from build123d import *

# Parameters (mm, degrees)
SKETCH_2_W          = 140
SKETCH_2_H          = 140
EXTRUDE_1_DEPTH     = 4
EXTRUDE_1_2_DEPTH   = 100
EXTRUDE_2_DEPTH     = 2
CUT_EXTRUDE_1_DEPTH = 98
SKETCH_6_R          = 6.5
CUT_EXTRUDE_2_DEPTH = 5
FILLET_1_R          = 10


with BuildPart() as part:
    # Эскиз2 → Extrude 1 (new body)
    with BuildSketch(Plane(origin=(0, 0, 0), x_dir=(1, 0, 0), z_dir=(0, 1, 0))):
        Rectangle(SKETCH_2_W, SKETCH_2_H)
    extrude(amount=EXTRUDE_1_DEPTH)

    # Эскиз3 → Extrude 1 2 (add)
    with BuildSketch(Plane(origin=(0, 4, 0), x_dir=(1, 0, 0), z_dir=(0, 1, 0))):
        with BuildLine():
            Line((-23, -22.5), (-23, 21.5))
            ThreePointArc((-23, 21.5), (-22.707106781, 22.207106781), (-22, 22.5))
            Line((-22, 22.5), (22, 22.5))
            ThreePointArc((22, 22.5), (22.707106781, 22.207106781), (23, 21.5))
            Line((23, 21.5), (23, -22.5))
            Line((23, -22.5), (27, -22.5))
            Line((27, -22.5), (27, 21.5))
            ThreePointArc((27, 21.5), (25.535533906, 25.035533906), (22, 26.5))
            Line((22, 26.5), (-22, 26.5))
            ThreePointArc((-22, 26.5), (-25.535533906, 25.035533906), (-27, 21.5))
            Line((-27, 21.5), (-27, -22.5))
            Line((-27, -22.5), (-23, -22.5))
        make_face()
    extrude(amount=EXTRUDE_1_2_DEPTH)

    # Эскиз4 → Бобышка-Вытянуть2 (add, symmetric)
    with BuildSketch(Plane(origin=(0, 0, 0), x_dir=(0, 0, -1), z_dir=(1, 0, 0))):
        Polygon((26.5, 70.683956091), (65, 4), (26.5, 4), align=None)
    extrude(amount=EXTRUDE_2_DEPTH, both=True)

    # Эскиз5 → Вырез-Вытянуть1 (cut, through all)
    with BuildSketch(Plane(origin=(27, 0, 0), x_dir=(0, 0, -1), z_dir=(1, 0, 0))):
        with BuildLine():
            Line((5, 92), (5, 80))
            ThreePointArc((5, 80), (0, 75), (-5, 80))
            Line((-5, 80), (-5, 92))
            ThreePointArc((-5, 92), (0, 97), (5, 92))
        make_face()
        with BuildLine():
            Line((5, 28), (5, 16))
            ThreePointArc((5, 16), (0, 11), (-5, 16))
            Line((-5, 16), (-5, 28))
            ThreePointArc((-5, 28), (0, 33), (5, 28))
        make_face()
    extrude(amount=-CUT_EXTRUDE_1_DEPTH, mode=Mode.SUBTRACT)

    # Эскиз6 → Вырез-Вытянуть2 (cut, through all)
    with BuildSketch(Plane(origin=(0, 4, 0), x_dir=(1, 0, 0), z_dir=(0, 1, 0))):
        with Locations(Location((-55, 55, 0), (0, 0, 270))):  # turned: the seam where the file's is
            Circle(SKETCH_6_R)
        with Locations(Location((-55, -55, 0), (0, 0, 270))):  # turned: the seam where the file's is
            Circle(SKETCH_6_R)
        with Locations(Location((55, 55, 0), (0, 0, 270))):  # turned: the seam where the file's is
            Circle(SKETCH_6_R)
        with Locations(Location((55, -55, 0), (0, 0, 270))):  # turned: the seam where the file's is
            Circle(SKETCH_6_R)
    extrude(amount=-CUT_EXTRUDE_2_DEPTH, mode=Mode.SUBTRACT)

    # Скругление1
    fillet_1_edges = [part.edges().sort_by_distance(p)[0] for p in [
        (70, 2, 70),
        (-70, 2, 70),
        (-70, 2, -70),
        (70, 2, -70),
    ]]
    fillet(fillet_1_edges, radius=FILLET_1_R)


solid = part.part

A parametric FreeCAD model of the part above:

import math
import FreeCAD as App
import Part
import Sketcher
from FreeCAD import Vector
Q = App.Units.Quantity


def edges_at(feature, points):
    """Names of the edges that pass closest to the given points."""
    edges = feature.Shape.Edges
    near = lambda p: min(range(len(edges)), key=lambda i: edges[i].distToShape(Part.Vertex(*p))[0])
    return sorted({f"Edge{near(p) + 1}" for p in points})


def add_polygon(sketch, points):
    """Adds a closed chain of lines whose ends are joined by coincident constraints."""
    first, n = sketch.GeometryCount, len(points)
    for a, b in zip(points, points[1:] + points[:1]):
        sketch.addGeometry(Part.LineSegment(App.Vector(*a, 0), App.Vector(*b, 0)), False)
    for i in range(n):
        sketch.addConstraint(Sketcher.Constraint("Coincident", first + i, 2, first + (i + 1) % n, 1))

doc = App.newDocument("Part")
body = doc.addObject("PartDesign::Body", "Body")

# Sketch on XZ plane
sketch1 = body.newObject("Sketcher::SketchObject", "Sketch")
sketch1.AttachmentSupport = (doc.getObject("XZ_Plane"), [""])
sketch1.MapMode = "FlatFace"
add_polygon(sketch1, [(-70, -70), (-70, 70), (70, 70), (70, -70)])  # lines 0-3
sketch1.addConstraint([
    Sketcher.Constraint("Vertical", 0),
    Sketcher.Constraint("Horizontal", 1),
    Sketcher.Constraint("Vertical", 2),
    Sketcher.Constraint("Horizontal", 3),
    Sketcher.Constraint("Symmetric", 0, 2, 2, 2, -1, 1),
    Sketcher.Constraint("Equal", 3, 0),
    Sketcher.Constraint("DistanceX", 1, 1, 1, 2, 140.0),
])
pad1 = body.newObject("PartDesign::Pad", "Pad")
pad1.Profile = sketch1
pad1.Length = 4
pad1.Reversed = True

# Sketch on XZ plane
sketch2 = body.newObject("Sketcher::SketchObject", "Sketch001")
sketch2.AttachmentSupport = (doc.getObject("XZ_Plane"), [""])
sketch2.MapMode = "FlatFace"
sketch2.AttachmentOffset = App.Placement(Vector(0, 0, -4), App.Rotation())
sketch2.addGeometry([
    Part.LineSegment(Vector(-23, 22.5, 0), Vector(-23, -21.5, 0)),  # 0
    Part.ArcOfCircle(Part.Circle(Vector(-22, -21.5, 0), Vector(0, 0, 1), 1), math.radians(-180), math.radians(-90)),  # 1
    Part.LineSegment(Vector(-22, -22.5, 0), Vector(22, -22.5, 0)),  # 2
    Part.ArcOfCircle(Part.Circle(Vector(22, -21.5, 0), Vector(0, 0, 1), 1), math.radians(-90), math.radians(0)),  # 3
    Part.LineSegment(Vector(23, -21.5, 0), Vector(23, 22.5, 0)),  # 4
    Part.LineSegment(Vector(23, 22.5, 0), Vector(27, 22.5, 0)),  # 5
    Part.LineSegment(Vector(27, 22.5, 0), Vector(27, -21.5, 0)),  # 6
    Part.ArcOfCircle(Part.Circle(Vector(22, -21.5, 0), Vector(0, 0, 1), 5), math.radians(-90), math.radians(0)),  # 7
    Part.LineSegment(Vector(22, -26.5, 0), Vector(-22, -26.5, 0)),  # 8
    Part.ArcOfCircle(Part.Circle(Vector(-22, -21.5, 0), Vector(0, 0, 1), 5), math.radians(180), math.radians(270)),  # 9
    Part.LineSegment(Vector(-27, -21.5, 0), Vector(-27, 22.5, 0)),  # 10
    Part.LineSegment(Vector(-27, 22.5, 0), Vector(-23, 22.5, 0)),  # 11
], False)
sketch2.addConstraint([
    Sketcher.Constraint("Tangent", 0, 2, 1, 1),
    Sketcher.Constraint("Tangent", 1, 2, 2, 1),
    Sketcher.Constraint("Tangent", 2, 2, 3, 1),
    Sketcher.Constraint("Tangent", 3, 2, 4, 1),
    Sketcher.Constraint("Coincident", 4, 2, 5, 1),
    Sketcher.Constraint("Coincident", 5, 2, 6, 1),
    Sketcher.Constraint("Tangent", 6, 2, 7, 2),
    Sketcher.Constraint("Tangent", 7, 1, 8, 1),
    Sketcher.Constraint("Tangent", 8, 2, 9, 2),
    Sketcher.Constraint("Tangent", 9, 1, 10, 1),
    Sketcher.Constraint("Coincident", 10, 2, 11, 1),
    Sketcher.Constraint("Coincident", 11, 2, 0, 1),
    Sketcher.Constraint("Vertical", 0),
    Sketcher.Constraint("Horizontal", 2),
    Sketcher.Constraint("Vertical", 4),
    Sketcher.Constraint("Horizontal", 5),
    Sketcher.Constraint("Vertical", 6),
    Sketcher.Constraint("Horizontal", 8),
    Sketcher.Constraint("Vertical", 10),
    Sketcher.Constraint("Horizontal", 11),
    Sketcher.Constraint("Coincident", 7, 3, 3, 3),
    Sketcher.Constraint("Coincident", 9, 3, 1, 3),
    Sketcher.Constraint("Equal", 1, 3),
    Sketcher.Constraint("Symmetric", 5, 2, 10, 2, -2),
    Sketcher.Constraint("Equal", 8, 0),
    Sketcher.Constraint("Radius", 1, 1.0),
    Sketcher.Constraint("Radius", 7, 5.0),
    Sketcher.Constraint("DistanceX", 2, 1, 2, 2, 44.0),
    Sketcher.Constraint("DistanceY", 1, 3, -1, 1, 21.5),
])
pad2 = body.newObject("PartDesign::Pad", "Pad001")
pad2.Profile = sketch2
pad2.Length = 100
pad2.Reversed = True

# Sketch on YZ plane
sketch3 = body.newObject("Sketcher::SketchObject", "Sketch002")
sketch3.AttachmentSupport = (doc.getObject("YZ_Plane"), [""])
sketch3.MapMode = "FlatFace"
add_polygon(sketch3, [(4, -65), (71, -26), (4, -26)])  # lines 0-2
sketch3.addConstraint([
    Sketcher.Constraint("Horizontal", 1),
    Sketcher.Constraint("Vertical", 2),
    Sketcher.Constraint("Angle", 0, Q("30 deg")),
    Sketcher.Constraint("Distance", 0, 77.0),
    Sketcher.Constraint("DistanceX", -1, 1, 1, 2, 4.0),
    Sketcher.Constraint("DistanceY", 2, 2, -1, 1, 65.0),
])
pad3 = body.newObject("PartDesign::Pad", "Pad002")
pad3.Profile = sketch3
pad3.Length = 4
pad3.Midplane = True

# Sketch on YZ plane
sketch4 = body.newObject("Sketcher::SketchObject", "Sketch003")
sketch4.AttachmentSupport = (doc.getObject("YZ_Plane"), [""])
sketch4.MapMode = "FlatFace"
sketch4.AttachmentOffset = App.Placement(Vector(0, 0, 27), App.Rotation())
sketch4.addGeometry([
    Part.LineSegment(Vector(80, -5, 0), Vector(92, -5, 0)),  # 0
    Part.ArcOfCircle(Part.Circle(Vector(92, 0, 0), Vector(0, 0, 1), 5), math.radians(-90), math.radians(90)),  # 1
    Part.LineSegment(Vector(92, 5, 0), Vector(80, 5, 0)),  # 2
    Part.ArcOfCircle(Part.Circle(Vector(80, 0, 0), Vector(0, 0, 1), 5), math.radians(90), math.radians(270)),  # 3
    Part.LineSegment(Vector(16, -5, 0), Vector(28, -5, 0)),  # 4
    Part.ArcOfCircle(Part.Circle(Vector(28, 0, 0), Vector(0, 0, 1), 5), math.radians(-90), math.radians(90)),  # 5
    Part.LineSegment(Vector(28, 5, 0), Vector(16, 5, 0)),  # 6
    Part.ArcOfCircle(Part.Circle(Vector(16, 0, 0), Vector(0, 0, 1), 5), math.radians(90), math.radians(270)),  # 7
], False)
sketch4.addConstraint([
    Sketcher.Constraint("Tangent", 0, 2, 1, 1),
    Sketcher.Constraint("Tangent", 1, 2, 2, 1),
    Sketcher.Constraint("Tangent", 2, 2, 3, 1),
    Sketcher.Constraint("Tangent", 3, 2, 0, 1),
    Sketcher.Constraint("Tangent", 4, 2, 5, 1),
    Sketcher.Constraint("Tangent", 5, 2, 6, 1),
    Sketcher.Constraint("Tangent", 6, 2, 7, 1),
    Sketcher.Constraint("Tangent", 7, 2, 4, 1),
    Sketcher.Constraint("Horizontal", 0),
    Sketcher.Constraint("Horizontal", 2),
    Sketcher.Constraint("Horizontal", 4),
    Sketcher.Constraint("Horizontal", 6),
    Sketcher.Constraint("Equal", 3, 5),
    Sketcher.Constraint("PointOnObject", 1, 3, -1),
    Sketcher.Constraint("PointOnObject", 5, 3, -1),
    Sketcher.Constraint("Equal", 2, 4),
    Sketcher.Constraint("Radius", 1, 5.0),
    Sketcher.Constraint("DistanceX", 0, 1, 0, 2, 12.0),
    Sketcher.Constraint("DistanceX", -1, 1, 1, 3, 92.0),
    Sketcher.Constraint("DistanceX", -1, 1, 5, 3, 28.0),
])
pocket1 = body.newObject("PartDesign::Pocket", "Pocket")
pocket1.Profile = sketch4
pocket1.Type = "ThroughAll"

# Sketch on XZ plane
sketch5 = body.newObject("Sketcher::SketchObject", "Sketch004")
sketch5.AttachmentSupport = (doc.getObject("XZ_Plane"), [""])
sketch5.MapMode = "FlatFace"
sketch5.AttachmentOffset = App.Placement(Vector(0, 0, -4), App.Rotation())
sketch5.addGeometry([
    Part.Circle(Vector(-55, -55, 0), Vector(0, 0, 1), 6),
    Part.Circle(Vector(-55, 55, 0), Vector(0, 0, 1), 6),
    Part.Circle(Vector(55, -55, 0), Vector(0, 0, 1), 6),
    Part.Circle(Vector(55, 55, 0), Vector(0, 0, 1), 6),
], False)
sketch5.addConstraint([
    Sketcher.Constraint("Equal", 0, 1),
    Sketcher.Constraint("Equal", 1, 2),
    Sketcher.Constraint("Equal", 2, 3),
    Sketcher.Constraint("Symmetric", 1, 3, 2, 3, -1, 1),
    Sketcher.Constraint("Symmetric", 0, 3, 3, 3, -1, 1),
    Sketcher.Constraint("Symmetric", 0, 3, 2, 3, -2),
    Sketcher.Constraint("Diameter", 0, 13.0),
    Sketcher.Constraint("DistanceX", 0, 3, -1, 1, 55.0),
    Sketcher.Constraint("DistanceY", 0, 3, -1, 1, 55.0),
])
pocket2 = body.newObject("PartDesign::Pocket", "Pocket001")
pocket2.Profile = sketch5
pocket2.Type = "ThroughAll"
pocket2.Reversed = True
doc.recompute()

fillet = body.newObject("PartDesign::Fillet", "Fillet")
fillet.Base = (pocket2, edges_at(pocket2, [
    (70, 2, 70),
    (-70, 2, 70),
    (-70, 2, -70),
    (70, 2, -70),
]))
fillet.Radius = 10

doc.recompute()
